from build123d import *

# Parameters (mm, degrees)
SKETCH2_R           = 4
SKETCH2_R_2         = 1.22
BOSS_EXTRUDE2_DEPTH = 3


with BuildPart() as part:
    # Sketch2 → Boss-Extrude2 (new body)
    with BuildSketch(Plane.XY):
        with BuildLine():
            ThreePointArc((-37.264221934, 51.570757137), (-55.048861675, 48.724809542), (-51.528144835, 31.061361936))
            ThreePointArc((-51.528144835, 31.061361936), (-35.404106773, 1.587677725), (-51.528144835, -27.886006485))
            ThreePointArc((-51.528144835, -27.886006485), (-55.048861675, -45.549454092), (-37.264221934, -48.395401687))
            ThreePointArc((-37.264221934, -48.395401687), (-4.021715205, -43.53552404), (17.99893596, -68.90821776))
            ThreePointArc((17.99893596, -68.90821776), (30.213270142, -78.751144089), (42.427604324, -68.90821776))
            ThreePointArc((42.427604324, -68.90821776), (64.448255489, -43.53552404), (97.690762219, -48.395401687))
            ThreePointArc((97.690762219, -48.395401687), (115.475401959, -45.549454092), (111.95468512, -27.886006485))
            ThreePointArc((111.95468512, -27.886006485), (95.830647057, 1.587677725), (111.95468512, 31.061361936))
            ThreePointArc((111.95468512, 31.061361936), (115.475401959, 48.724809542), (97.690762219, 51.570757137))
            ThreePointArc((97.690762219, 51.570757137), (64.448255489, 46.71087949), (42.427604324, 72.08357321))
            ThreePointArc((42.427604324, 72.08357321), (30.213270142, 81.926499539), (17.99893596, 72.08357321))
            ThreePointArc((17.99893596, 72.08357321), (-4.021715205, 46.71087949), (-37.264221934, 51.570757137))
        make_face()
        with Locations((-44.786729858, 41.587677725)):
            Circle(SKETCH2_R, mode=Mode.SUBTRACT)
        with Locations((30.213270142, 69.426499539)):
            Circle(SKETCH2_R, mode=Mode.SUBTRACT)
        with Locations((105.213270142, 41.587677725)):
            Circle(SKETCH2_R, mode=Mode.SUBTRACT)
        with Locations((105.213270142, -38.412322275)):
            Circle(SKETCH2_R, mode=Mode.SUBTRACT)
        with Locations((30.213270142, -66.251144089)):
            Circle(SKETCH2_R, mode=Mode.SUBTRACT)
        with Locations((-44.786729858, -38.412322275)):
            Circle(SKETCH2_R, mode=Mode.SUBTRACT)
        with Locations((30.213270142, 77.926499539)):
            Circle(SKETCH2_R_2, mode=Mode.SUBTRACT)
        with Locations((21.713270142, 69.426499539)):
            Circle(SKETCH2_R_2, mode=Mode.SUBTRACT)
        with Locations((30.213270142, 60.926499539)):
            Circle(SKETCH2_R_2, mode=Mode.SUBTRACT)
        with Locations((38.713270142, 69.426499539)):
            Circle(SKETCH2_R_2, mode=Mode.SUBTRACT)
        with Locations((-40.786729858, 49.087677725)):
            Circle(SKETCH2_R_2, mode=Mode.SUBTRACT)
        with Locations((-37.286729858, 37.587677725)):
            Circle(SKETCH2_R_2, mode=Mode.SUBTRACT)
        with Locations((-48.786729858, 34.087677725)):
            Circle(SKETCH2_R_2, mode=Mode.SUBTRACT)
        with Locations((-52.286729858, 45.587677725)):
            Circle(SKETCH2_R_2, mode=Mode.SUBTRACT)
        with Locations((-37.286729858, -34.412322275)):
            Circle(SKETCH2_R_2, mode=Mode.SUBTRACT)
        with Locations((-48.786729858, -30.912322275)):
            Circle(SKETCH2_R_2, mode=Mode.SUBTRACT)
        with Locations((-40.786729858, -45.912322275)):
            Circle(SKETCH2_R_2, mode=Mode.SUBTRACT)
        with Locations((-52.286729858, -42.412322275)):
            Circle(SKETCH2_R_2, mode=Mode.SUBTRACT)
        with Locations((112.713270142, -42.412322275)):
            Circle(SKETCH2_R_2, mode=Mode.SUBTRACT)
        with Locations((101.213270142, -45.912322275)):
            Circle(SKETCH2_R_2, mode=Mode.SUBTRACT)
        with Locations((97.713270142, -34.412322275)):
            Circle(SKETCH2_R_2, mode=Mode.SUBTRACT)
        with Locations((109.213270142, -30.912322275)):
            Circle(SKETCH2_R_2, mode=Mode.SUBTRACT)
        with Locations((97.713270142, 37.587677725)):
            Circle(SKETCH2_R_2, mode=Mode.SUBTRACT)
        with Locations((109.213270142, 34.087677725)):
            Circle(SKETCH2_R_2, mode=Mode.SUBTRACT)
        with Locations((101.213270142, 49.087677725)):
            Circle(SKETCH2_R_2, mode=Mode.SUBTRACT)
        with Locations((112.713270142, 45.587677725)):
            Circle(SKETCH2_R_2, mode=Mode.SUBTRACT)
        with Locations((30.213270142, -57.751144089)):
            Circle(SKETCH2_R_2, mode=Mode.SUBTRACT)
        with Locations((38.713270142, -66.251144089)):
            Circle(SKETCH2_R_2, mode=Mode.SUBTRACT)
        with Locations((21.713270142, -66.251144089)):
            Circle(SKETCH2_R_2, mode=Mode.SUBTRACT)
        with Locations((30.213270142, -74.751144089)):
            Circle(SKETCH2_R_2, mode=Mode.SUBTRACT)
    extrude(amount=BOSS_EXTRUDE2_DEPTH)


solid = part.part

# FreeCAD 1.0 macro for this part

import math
import FreeCAD as App
import Part
import Sketcher
from FreeCAD import Vector

doc = App.newDocument("Part")
params = doc.addObject("Spreadsheet::Sheet", "Params")
for row, (alias, value) in enumerate([
    ("sketch1_diameter", "8 mm"),
    ("sketch1_radius", "35 mm"),
    ("sketch1_radius2", "12.5 mm"),
    ("sketch1_diameter2", "2.44 mm"),
    ("pad1_length", "3 mm"),
], start=1):
    params.set(f"A{row}", alias)
    params.set(f"B{row}", "=" + value)
    params.setAlias(f"B{row}", alias)

body = doc.addObject("PartDesign::Body", "Body")

# Sketch on XY plane
sketch1 = doc.addObject("Sketcher::SketchObject", "Sketch")
body.addObject(sketch1)
sketch1.AttachmentSupport = (doc.XY_Plane, [""])
sketch1.MapMode = "FlatFace"
sketch1.addGeometry([
    Part.ArcOfCircle(Part.Circle(Vector(-44.8, 41.6, 0), Vector(0, 0, 1), 12.5), math.radians(53), math.radians(237)),  # 0
    Part.ArcOfCircle(Part.Circle(Vector(-70.4, 1.6, 0), Vector(0, 0, 1), 35), math.radians(-57), math.radians(57)),  # 1
    Part.ArcOfCircle(Part.Circle(Vector(-44.8, -38.4, 0), Vector(0, 0, 1), 12.5), math.radians(123), math.radians(307)),  # 2
    Part.ArcOfCircle(Part.Circle(Vector(-16.2, -76.3, 0), Vector(0, 0, 1), 35), math.radians(12), math.radians(127)),  # 3
    Part.ArcOfCircle(Part.Circle(Vector(30.2, -66.3, 0), Vector(0, 0, 1), 12.5), math.radians(-168), math.radians(-12)),  # 4
    Part.ArcOfCircle(Part.Circle(Vector(76.6, -76.3, 0), Vector(0, 0, 1), 35), math.radians(53), math.radians(168)),  # 5
    Part.ArcOfCircle(Part.Circle(Vector(105.2, -38.4, 0), Vector(0, 0, 1), 12.5), math.radians(-127), math.radians(57)),  # 6
    Part.ArcOfCircle(Part.Circle(Vector(130.8, 1.6, 0), Vector(0, 0, 1), 35), math.radians(123), math.radians(237)),  # 7
    Part.ArcOfCircle(Part.Circle(Vector(105.2, 41.6, 0), Vector(0, 0, 1), 12.5), math.radians(-57), math.radians(127)),  # 8
    Part.ArcOfCircle(Part.Circle(Vector(76.6, 79.5, 0), Vector(0, 0, 1), 35), math.radians(-168), math.radians(-53)),  # 9
    Part.ArcOfCircle(Part.Circle(Vector(30.2, 69.4, 0), Vector(0, 0, 1), 12.5), math.radians(12), math.radians(168)),  # 10
    Part.ArcOfCircle(Part.Circle(Vector(-16.2, 79.5, 0), Vector(0, 0, 1), 35), math.radians(-127), math.radians(-12)),  # 11
    Part.Circle(Vector(-52.3, -42.4, 0), Vector(0, 0, 1), 1.2),  # 12
    Part.Circle(Vector(-44.8, -38.4, 0), Vector(0, 0, 1), 4),  # 13
    Part.Circle(Vector(-40.8, -45.9, 0), Vector(0, 0, 1), 1.2),  # 14
    Part.Circle(Vector(21.7, -66.3, 0), Vector(0, 0, 1), 1.2),  # 15
    Part.Circle(Vector(-48.8, -30.9, 0), Vector(0, 0, 1), 1.2),  # 16
    Part.Circle(Vector(-37.3, -34.4, 0), Vector(0, 0, 1), 1.2),  # 17
    Part.Circle(Vector(30.2, -74.8, 0), Vector(0, 0, 1), 1.2),  # 18
    Part.Circle(Vector(30.2, -66.3, 0), Vector(0, 0, 1), 4),  # 19
    Part.Circle(Vector(38.7, -66.3, 0), Vector(0, 0, 1), 1.2),  # 20
    Part.Circle(Vector(30.2, -57.8, 0), Vector(0, 0, 1), 1.2),  # 21
    Part.Circle(Vector(101.2, -45.9, 0), Vector(0, 0, 1), 1.2),  # 22
    Part.Circle(Vector(112.7, -42.4, 0), Vector(0, 0, 1), 1.2),  # 23
    Part.Circle(Vector(105.2, -38.4, 0), Vector(0, 0, 1), 4),  # 24
    Part.Circle(Vector(97.7, -34.4, 0), Vector(0, 0, 1), 1.2),  # 25
    Part.Circle(Vector(109.2, -30.9, 0), Vector(0, 0, 1), 1.2),  # 26
    Part.Circle(Vector(-48.8, 34.1, 0), Vector(0, 0, 1), 1.2),  # 27
    Part.Circle(Vector(-37.3, 37.6, 0), Vector(0, 0, 1), 1.2),  # 28
    Part.Circle(Vector(-44.8, 41.6, 0), Vector(0, 0, 1), 4),  # 29
    Part.Circle(Vector(-52.3, 45.6, 0), Vector(0, 0, 1), 1.2),  # 30
    Part.Circle(Vector(-40.8, 49.1, 0), Vector(0, 0, 1), 1.2),  # 31
    Part.Circle(Vector(21.7, 69.4, 0), Vector(0, 0, 1), 1.2),  # 32
    Part.Circle(Vector(97.7, 37.6, 0), Vector(0, 0, 1), 1.2),  # 33
    Part.Circle(Vector(109.2, 34.1, 0), Vector(0, 0, 1), 1.2),  # 34
    Part.Circle(Vector(30.2, 60.9, 0), Vector(0, 0, 1), 1.2),  # 35
    Part.Circle(Vector(30.2, 69.4, 0), Vector(0, 0, 1), 4),  # 36
    Part.Circle(Vector(38.7, 69.4, 0), Vector(0, 0, 1), 1.2),  # 37
    Part.Circle(Vector(30.2, 77.9, 0), Vector(0, 0, 1), 1.2),  # 38
    Part.Circle(Vector(101.2, 49.1, 0), Vector(0, 0, 1), 1.2),  # 39
    Part.Circle(Vector(105.2, 41.6, 0), Vector(0, 0, 1), 4),  # 40
    Part.Circle(Vector(112.7, 45.6, 0), Vector(0, 0, 1), 1.2),  # 41
], False)
sketch1.addConstraint([
    Sketcher.Constraint("Tangent", 0, 2, 1, 2),
    Sketcher.Constraint("Tangent", 1, 1, 2, 1),
    Sketcher.Constraint("Tangent", 2, 2, 3, 2),
    Sketcher.Constraint("Tangent", 3, 1, 4, 1),
    Sketcher.Constraint("Tangent", 4, 2, 5, 2),
    Sketcher.Constraint("Tangent", 5, 1, 6, 1),
    Sketcher.Constraint("Tangent", 6, 2, 7, 2),
    Sketcher.Constraint("Tangent", 7, 1, 8, 1),
    Sketcher.Constraint("Tangent", 8, 2, 9, 2),
    Sketcher.Constraint("Tangent", 9, 1, 10, 1),
    Sketcher.Constraint("Tangent", 10, 2, 11, 2),
    Sketcher.Constraint("Tangent", 11, 1, 0, 1),
    Sketcher.Constraint("Coincident", 13, 3, 2, 3),
    Sketcher.Constraint("Coincident", 19, 3, 4, 3),
    Sketcher.Constraint("Coincident", 24, 3, 6, 3),
    Sketcher.Constraint("Coincident", 29, 3, 0, 3),
    Sketcher.Constraint("Coincident", 36, 3, 10, 3),
    Sketcher.Constraint("Coincident", 40, 3, 8, 3),
    Sketcher.Constraint("Equal", 0, 2),
    Sketcher.Constraint("Equal", 1, 3),
    Sketcher.Constraint("Equal", 2, 4),
    Sketcher.Constraint("Equal", 3, 5),
    Sketcher.Constraint("Equal", 4, 6),
    Sketcher.Constraint("Equal", 5, 7),
    Sketcher.Constraint("Equal", 6, 8),
    Sketcher.Constraint("Equal", 7, 9),
    Sketcher.Constraint("Equal", 8, 10),
    Sketcher.Constraint("Equal", 9, 11),
    Sketcher.Constraint("Equal", 12, 14),
    Sketcher.Constraint("Equal", 14, 15),
    Sketcher.Constraint("Equal", 15, 16),
    Sketcher.Constraint("Equal", 16, 17),
    Sketcher.Constraint("Equal", 17, 18),
    Sketcher.Constraint("Equal", 13, 19),
    Sketcher.Constraint("Equal", 18, 20),
    Sketcher.Constraint("Equal", 20, 21),
    Sketcher.Constraint("Equal", 21, 22),
    Sketcher.Constraint("Equal", 22, 23),
    Sketcher.Constraint("Equal", 19, 24),
    Sketcher.Constraint("Equal", 23, 25),
    Sketcher.Constraint("Equal", 25, 26),
    Sketcher.Constraint("Equal", 26, 27),
    Sketcher.Constraint("Equal", 27, 28),
    Sketcher.Constraint("Equal", 24, 29),
    Sketcher.Constraint("Equal", 28, 30),
    Sketcher.Constraint("Equal", 30, 31),
    Sketcher.Constraint("Equal", 31, 32),
    Sketcher.Constraint("Equal", 32, 33),
    Sketcher.Constraint("Equal", 33, 34),
    Sketcher.Constraint("Equal", 34, 35),
    Sketcher.Constraint("Equal", 29, 36),
    Sketcher.Constraint("Equal", 35, 37),
    Sketcher.Constraint("Equal", 37, 38),
    Sketcher.Constraint("Equal", 38, 39),
    Sketcher.Constraint("Equal", 36, 40),
    Sketcher.Constraint("Equal", 39, 41),
    Sketcher.Constraint("Horizontal", 3, 3, 5, 3),
    Sketcher.Constraint("Horizontal", 2, 3, 6, 3),
    Sketcher.Constraint("Horizontal", 1, 3, 7, 3),
    Sketcher.Constraint("Horizontal", 0, 3, 8, 3),
    Sketcher.Constraint("Horizontal", 9, 3, 11, 3),
    Sketcher.Constraint("Horizontal", 4, 3, 15, 3),
    Sketcher.Constraint("Horizontal", 19, 3, 20, 3),
    Sketcher.Constraint("Horizontal", 14, 3, 22, 3),
    Sketcher.Constraint("Horizontal", 12, 3, 23, 3),
    Sketcher.Constraint("Horizontal", 17, 3, 25, 3),
    Sketcher.Constraint("Horizontal", 16, 3, 26, 3),
    Sketcher.Constraint("Horizontal", 10, 3, 32, 3),
    Sketcher.Constraint("Horizontal", 28, 3, 33, 3),
    Sketcher.Constraint("Horizontal", 27, 3, 34, 3),
    Sketcher.Constraint("Horizontal", 36, 3, 37, 3),
    Sketcher.Constraint("Horizontal", 31, 3, 39, 3),
    Sketcher.Constraint("Horizontal", 30, 3, 41, 3),
    Sketcher.Constraint("Vertical", 0, 3, 2, 3),
    Sketcher.Constraint("Vertical", 5, 3, 9, 3),
    Sketcher.Constraint("Vertical", 10, 3, 18, 3),
    Sketcher.Constraint("Vertical", 19, 3, 21, 3),
    Sketcher.Constraint("Vertical", 16, 3, 27, 3),
    Sketcher.Constraint("Vertical", 17, 3, 28, 3),
    Sketcher.Constraint("Vertical", 12, 3, 30, 3),
    Sketcher.Constraint("Vertical", 14, 3, 31, 3),
    Sketcher.Constraint("Vertical", 15, 3, 32, 3),
    Sketcher.Constraint("Vertical", 25, 3, 33, 3),
    Sketcher.Constraint("Vertical", 26, 3, 34, 3),
    Sketcher.Constraint("Vertical", 21, 3, 35, 3),
    Sketcher.Constraint("Vertical", 20, 3, 37, 3),
    Sketcher.Constraint("Vertical", 36, 3, 38, 3),
    Sketcher.Constraint("Vertical", 22, 3, 39, 3),
    Sketcher.Constraint("Vertical", 23, 3, 41, 3),
    Sketcher.Constraint("Diameter", 13, 8.0),
    Sketcher.Constraint("Radius", 1, 35.0),
    Sketcher.Constraint("Radius", 0, 12.5),
    Sketcher.Constraint("Diameter", 12, 2.44),
    Sketcher.Constraint("DistanceY", 1, 3, 0, 3, 40.0),
    Sketcher.Constraint("DistanceX", 2, 3, 4, 3, 75.0),
    Sketcher.Constraint("DistanceY", 12, 3, 2, 3, 4.0),
    Sketcher.Constraint("DistanceX", 2, 3, 14, 3, 4.0),
    Sketcher.Constraint("DistanceX", 16, 3, 2, 3, 4.0),
    Sketcher.Constraint("DistanceY", 14, 3, 16, 3, 15.0),
    Sketcher.Constraint("DistanceY", 2, 3, 17, 3, 4.0),
    Sketcher.Constraint("DistanceX", 12, 3, 17, 3, 15.0),
    Sketcher.Constraint("DistanceX", 15, 3, 20, 3, 17.0),
    Sketcher.Constraint("DistanceY", 18, 3, 21, 3, 17.0),
    Sketcher.Constraint("DistanceX", 22, 3, 6, 3, 4.0),
    Sketcher.Constraint("DistanceX", 20, 3, 23, 3, 74.0),
    Sketcher.Constraint("DistanceX", 25, 3, 23, 3, 15.0),
    Sketcher.Constraint("DistanceX", 6, 3, 26, 3, 4.0),
    Sketcher.Constraint("DistanceY", 16, 3, 27, 3, 65.0),
    Sketcher.Constraint("DistanceY", 28, 3, 0, 3, 4.0),
    Sketcher.Constraint("DistanceY", 0, 3, 30, 3, 4.0),
    Sketcher.Constraint("DistanceY", 27, 3, 31, 3, 15.0),
    Sketcher.Constraint("DistanceX", 28, 3, 32, 3, 59.0),
    Sketcher.Constraint("DistanceY", 35, 3, 38, 3, 17.0),
    Sketcher.Constraint("DistanceX", 12, 3, 2, 3, 7.5),
    Sketcher.Constraint("DistanceY", 14, 3, 2, 3, 7.5),
    Sketcher.Constraint("DistanceY", 18, 3, 4, 3, 8.5),
    Sketcher.Constraint("DistanceY", 35, 3, 10, 3, 8.5),
    Sketcher.Constraint("DistanceX", 3, 3, -1, 1, 16.2012),
    Sketcher.Constraint("DistanceY", -1, 1, 10, 3, 69.4265),
    Sketcher.Constraint("DistanceY", 2, 2, -1, 1, 48.395402),
])
sketch1.setExpression("Constraints[89]", "Params.sketch1_diameter")
sketch1.setExpression("Constraints[90]", "Params.sketch1_radius")
sketch1.setExpression("Constraints[91]", "Params.sketch1_radius2")
sketch1.setExpression("Constraints[92]", "Params.sketch1_diameter2")
pad1 = doc.addObject("PartDesign::Pad", "Pad")
body.addObject(pad1)
pad1.Profile = sketch1
pad1.setExpression("Length", "Params.pad1_length")

doc.recompute()
